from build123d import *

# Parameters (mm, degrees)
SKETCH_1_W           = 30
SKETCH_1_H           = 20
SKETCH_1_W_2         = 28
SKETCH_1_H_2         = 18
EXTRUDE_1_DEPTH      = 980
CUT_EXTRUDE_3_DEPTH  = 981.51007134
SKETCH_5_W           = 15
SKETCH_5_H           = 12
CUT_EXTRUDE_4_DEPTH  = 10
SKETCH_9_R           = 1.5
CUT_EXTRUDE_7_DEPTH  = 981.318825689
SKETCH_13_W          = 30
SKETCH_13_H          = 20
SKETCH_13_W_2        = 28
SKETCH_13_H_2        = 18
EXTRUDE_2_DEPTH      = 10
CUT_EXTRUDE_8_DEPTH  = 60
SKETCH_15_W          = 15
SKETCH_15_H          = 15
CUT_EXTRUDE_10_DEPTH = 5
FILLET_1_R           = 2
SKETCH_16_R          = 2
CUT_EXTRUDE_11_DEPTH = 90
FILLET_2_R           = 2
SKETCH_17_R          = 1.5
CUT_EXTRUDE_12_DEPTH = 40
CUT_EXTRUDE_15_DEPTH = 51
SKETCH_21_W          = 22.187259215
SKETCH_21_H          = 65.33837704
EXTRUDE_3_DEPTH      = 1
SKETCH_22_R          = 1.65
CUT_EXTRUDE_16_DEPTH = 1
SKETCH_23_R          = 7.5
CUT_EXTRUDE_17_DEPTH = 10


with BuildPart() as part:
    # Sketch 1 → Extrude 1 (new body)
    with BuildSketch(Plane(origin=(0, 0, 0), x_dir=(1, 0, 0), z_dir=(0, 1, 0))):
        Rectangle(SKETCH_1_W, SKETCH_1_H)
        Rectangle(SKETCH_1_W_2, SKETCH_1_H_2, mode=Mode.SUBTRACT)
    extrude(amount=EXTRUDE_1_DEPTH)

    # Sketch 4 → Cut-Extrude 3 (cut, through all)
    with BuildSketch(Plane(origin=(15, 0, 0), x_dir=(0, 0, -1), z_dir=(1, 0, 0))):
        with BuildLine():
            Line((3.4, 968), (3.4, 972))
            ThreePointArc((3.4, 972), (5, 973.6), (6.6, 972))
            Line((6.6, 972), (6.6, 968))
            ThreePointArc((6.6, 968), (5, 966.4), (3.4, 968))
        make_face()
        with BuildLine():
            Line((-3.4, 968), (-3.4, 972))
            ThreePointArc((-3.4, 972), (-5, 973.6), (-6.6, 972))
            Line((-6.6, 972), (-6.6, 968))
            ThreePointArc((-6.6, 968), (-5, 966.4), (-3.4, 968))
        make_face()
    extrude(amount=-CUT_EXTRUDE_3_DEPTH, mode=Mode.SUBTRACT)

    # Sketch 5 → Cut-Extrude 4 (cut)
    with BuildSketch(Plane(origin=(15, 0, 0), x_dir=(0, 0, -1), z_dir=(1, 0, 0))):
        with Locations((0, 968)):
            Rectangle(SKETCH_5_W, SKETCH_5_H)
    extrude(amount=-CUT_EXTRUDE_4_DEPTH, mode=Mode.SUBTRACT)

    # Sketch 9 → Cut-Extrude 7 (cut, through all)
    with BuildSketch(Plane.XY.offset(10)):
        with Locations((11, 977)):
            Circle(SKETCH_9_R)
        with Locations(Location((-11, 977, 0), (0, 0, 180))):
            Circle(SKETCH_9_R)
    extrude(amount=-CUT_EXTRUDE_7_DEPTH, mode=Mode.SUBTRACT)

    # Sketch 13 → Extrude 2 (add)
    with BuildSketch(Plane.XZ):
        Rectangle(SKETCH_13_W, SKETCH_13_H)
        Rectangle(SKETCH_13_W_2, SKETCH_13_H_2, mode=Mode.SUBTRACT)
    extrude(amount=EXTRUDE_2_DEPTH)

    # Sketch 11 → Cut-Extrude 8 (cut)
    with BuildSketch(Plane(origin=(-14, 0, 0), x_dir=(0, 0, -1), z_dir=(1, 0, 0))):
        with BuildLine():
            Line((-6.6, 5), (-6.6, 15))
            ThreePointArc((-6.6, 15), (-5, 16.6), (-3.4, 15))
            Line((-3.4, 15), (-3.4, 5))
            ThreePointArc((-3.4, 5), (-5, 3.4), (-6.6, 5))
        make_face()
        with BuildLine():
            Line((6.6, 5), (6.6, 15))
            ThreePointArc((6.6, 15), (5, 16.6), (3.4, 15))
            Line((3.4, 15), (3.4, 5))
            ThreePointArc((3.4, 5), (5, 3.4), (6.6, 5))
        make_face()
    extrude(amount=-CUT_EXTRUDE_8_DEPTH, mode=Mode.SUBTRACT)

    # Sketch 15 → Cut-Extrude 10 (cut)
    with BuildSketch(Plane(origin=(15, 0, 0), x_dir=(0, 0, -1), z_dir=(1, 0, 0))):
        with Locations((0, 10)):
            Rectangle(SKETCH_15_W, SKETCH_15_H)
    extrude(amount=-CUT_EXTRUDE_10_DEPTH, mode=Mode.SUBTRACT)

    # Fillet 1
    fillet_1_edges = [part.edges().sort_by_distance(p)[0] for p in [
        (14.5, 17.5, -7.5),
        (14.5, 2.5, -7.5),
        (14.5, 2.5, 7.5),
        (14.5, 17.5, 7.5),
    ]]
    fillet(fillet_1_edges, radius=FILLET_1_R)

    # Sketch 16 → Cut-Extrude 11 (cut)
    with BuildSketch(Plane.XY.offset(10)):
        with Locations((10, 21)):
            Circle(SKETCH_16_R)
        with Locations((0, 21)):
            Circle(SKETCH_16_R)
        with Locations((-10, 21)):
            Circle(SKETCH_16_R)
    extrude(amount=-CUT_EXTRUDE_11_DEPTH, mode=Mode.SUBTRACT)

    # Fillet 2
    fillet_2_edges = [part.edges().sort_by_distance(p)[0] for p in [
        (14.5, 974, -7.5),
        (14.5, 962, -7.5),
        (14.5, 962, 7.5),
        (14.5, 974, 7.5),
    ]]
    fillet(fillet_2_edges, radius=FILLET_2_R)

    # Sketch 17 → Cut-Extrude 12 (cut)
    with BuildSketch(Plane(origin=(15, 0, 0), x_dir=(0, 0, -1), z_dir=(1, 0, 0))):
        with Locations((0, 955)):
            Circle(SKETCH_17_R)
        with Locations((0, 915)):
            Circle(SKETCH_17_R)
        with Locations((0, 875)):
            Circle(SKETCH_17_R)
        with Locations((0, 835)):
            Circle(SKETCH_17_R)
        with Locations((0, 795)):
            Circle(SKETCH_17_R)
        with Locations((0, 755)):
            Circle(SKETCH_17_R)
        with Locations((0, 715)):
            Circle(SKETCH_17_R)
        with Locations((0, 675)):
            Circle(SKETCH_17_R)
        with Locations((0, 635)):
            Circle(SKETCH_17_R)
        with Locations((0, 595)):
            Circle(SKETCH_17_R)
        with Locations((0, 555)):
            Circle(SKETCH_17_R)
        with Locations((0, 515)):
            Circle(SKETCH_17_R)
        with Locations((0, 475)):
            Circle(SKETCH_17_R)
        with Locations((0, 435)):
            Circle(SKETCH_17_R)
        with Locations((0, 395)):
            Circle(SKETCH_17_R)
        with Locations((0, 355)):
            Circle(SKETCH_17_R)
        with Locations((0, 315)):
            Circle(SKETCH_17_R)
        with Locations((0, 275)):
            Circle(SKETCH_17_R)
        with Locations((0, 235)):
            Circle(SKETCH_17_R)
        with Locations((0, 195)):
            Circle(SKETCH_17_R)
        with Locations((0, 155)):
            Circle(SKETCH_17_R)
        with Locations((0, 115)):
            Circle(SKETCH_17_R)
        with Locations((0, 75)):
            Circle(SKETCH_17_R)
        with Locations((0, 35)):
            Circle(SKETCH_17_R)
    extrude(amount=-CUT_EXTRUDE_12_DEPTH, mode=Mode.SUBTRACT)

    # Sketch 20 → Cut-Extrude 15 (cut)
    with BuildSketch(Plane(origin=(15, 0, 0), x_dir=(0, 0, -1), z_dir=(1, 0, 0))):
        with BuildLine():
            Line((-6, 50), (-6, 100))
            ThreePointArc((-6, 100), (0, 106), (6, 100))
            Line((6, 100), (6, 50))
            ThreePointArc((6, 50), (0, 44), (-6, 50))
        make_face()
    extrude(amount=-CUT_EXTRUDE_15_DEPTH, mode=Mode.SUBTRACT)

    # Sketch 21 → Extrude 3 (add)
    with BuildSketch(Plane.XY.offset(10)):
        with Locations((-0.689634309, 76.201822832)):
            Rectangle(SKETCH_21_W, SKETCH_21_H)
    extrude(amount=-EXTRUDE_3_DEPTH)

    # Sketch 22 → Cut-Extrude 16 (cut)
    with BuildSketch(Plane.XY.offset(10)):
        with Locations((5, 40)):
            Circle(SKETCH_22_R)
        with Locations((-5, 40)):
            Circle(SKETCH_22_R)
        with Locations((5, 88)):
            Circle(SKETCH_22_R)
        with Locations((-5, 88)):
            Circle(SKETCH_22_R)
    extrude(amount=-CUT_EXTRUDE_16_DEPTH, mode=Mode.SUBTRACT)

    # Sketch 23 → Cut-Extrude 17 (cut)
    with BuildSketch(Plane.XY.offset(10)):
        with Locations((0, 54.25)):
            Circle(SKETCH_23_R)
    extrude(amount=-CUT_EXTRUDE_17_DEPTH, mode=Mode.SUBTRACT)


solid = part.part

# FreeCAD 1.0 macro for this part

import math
import FreeCAD as App
import Part
import Sketcher


def edges_at(feature, points):
    """Names of the edges that pass closest to the given points."""
    edges = feature.Shape.Edges
    near = lambda p: min(range(len(edges)), key=lambda i: edges[i].distToShape(Part.Vertex(*p))[0])
    return sorted({f"Edge{near(p) + 1}" for p in points})

doc = App.newDocument("Part")
body = doc.addObject("PartDesign::Body", "Body")

# Sketch on XZ plane
sketch1 = body.newObject("Sketcher::SketchObject", "Sketch")
sketch1.AttachmentSupport = (doc.getObject("XZ_Plane"), [""])
sketch1.MapMode = "FlatFace"
sketch1.addGeometry([
    Part.LineSegment(App.Vector(-15, -10, 0), App.Vector(-15, 10, 0)),  # 0
    Part.LineSegment(App.Vector(-15, 10, 0), App.Vector(15, 10, 0)),  # 1
    Part.LineSegment(App.Vector(15, 10, 0), App.Vector(15, -10, 0)),  # 2
    Part.LineSegment(App.Vector(15, -10, 0), App.Vector(-15, -10, 0)),  # 3
    Part.LineSegment(App.Vector(14, 9, 0), App.Vector(-14, 9, 0)),  # 4
    Part.LineSegment(App.Vector(-14, 9, 0), App.Vector(-14, -9, 0)),  # 5
    Part.LineSegment(App.Vector(-14, -9, 0), App.Vector(14, -9, 0)),  # 6
    Part.LineSegment(App.Vector(14, -9, 0), App.Vector(14, 9, 0)),  # 7
], False)
sketch1.addConstraint([
    Sketcher.Constraint("Coincident", 0, 2, 1, 1),
    Sketcher.Constraint("Coincident", 1, 2, 2, 1),
    Sketcher.Constraint("Coincident", 2, 2, 3, 1),
    Sketcher.Constraint("Coincident", 3, 2, 0, 1),
    Sketcher.Constraint("Coincident", 4, 2, 5, 1),
    Sketcher.Constraint("Coincident", 5, 2, 6, 1),
    Sketcher.Constraint("Coincident", 6, 2, 7, 1),
    Sketcher.Constraint("Coincident", 7, 2, 4, 1),
    Sketcher.Constraint("Vertical", 0),
    Sketcher.Constraint("Horizontal", 1),
    Sketcher.Constraint("Vertical", 2),
    Sketcher.Constraint("Horizontal", 3),
    Sketcher.Constraint("Horizontal", 4),
    Sketcher.Constraint("Vertical", 5),
    Sketcher.Constraint("Horizontal", 6),
    Sketcher.Constraint("Vertical", 7),
    Sketcher.Constraint("Symmetric", 0, 2, 2, 2, -1, 1),
    Sketcher.Constraint("Symmetric", 4, 2, 6, 2, -1, 1),
    Sketcher.Constraint("DistanceX", 1, 1, 1, 2, 30.0),
    Sketcher.Constraint("DistanceX", 4, 2, 4, 1, 28.0),
    Sketcher.Constraint("DistanceY", 0, 1, 0, 2, 20.0),
    Sketcher.Constraint("DistanceY", 5, 2, 5, 1, 18.0),
])
pad1 = body.newObject("PartDesign::Pad", "Pad")
pad1.Profile = sketch1
pad1.Length = 980
pad1.Reversed = True

# Sketch on YZ plane
sketch2 = body.newObject("Sketcher::SketchObject", "Sketch001")
sketch2.AttachmentSupport = (doc.getObject("YZ_Plane"), [""])
sketch2.MapMode = "FlatFace"
sketch2.AttachmentOffset = App.Placement(App.Vector(0, 0, 15), App.Rotation())
sketch2.addGeometry([
    Part.LineSegment(App.Vector(972, -3.4, 0), App.Vector(968, -3.4, 0)),  # 0
    Part.ArcOfCircle(Part.Circle(App.Vector(968, -5, 0), App.Vector(0, 0, 1), 1.6), math.radians(90), math.radians(270)),  # 1
    Part.LineSegment(App.Vector(968, -6.6, 0), App.Vector(972, -6.6, 0)),  # 2
    Part.ArcOfCircle(Part.Circle(App.Vector(972, -5, 0), App.Vector(0, 0, 1), 1.6), math.radians(-90), math.radians(90)),  # 3
    Part.LineSegment(App.Vector(968, 3.4, 0), App.Vector(972, 3.4, 0)),  # 4
    Part.ArcOfCircle(Part.Circle(App.Vector(972, 5, 0), App.Vector(0, 0, 1), 1.6), math.radians(-90), math.radians(90)),  # 5
    Part.LineSegment(App.Vector(972, 6.6, 0), App.Vector(968, 6.6, 0)),  # 6
    Part.ArcOfCircle(Part.Circle(App.Vector(968, 5, 0), App.Vector(0, 0, 1), 1.6), math.radians(90), math.radians(270)),  # 7
], False)
sketch2.addConstraint([
    Sketcher.Constraint("Tangent", 0, 2, 1, 1),
    Sketcher.Constraint("Tangent", 1, 2, 2, 1),
    Sketcher.Constraint("Tangent", 2, 2, 3, 1),
    Sketcher.Constraint("Tangent", 3, 2, 0, 1),
    Sketcher.Constraint("Tangent", 4, 2, 5, 1),
    Sketcher.Constraint("Tangent", 5, 2, 6, 1),
    Sketcher.Constraint("Tangent", 6, 2, 7, 1),
    Sketcher.Constraint("Tangent", 7, 2, 4, 1),
    Sketcher.Constraint("Horizontal", 0),
    Sketcher.Constraint("Horizontal", 2),
    Sketcher.Constraint("Horizontal", 4),
    Sketcher.Constraint("Horizontal", 6),
    Sketcher.Constraint("Equal", 3, 5),
    Sketcher.Constraint("Symmetric", 3, 3, 5, 3, -1),
    Sketcher.Constraint("Vertical", 1, 3, 7, 3),
    Sketcher.Constraint("Radius", 1, 1.6),
    Sketcher.Constraint("DistanceX", 0, 2, 0, 1, 4.0),
    Sketcher.Constraint("DistanceX", -1, 1, 1, 3, 968.0),
    Sketcher.Constraint("DistanceY", 1, 3, -1, 1, 5.0),
])
pocket1 = body.newObject("PartDesign::Pocket", "Pocket")
pocket1.Profile = sketch2
pocket1.Type = "ThroughAll"

# Sketch on YZ plane
sketch3 = body.newObject("Sketcher::SketchObject", "Sketch002")
sketch3.AttachmentSupport = (doc.getObject("YZ_Plane"), [""])
sketch3.MapMode = "FlatFace"
sketch3.AttachmentOffset = App.Placement(App.Vector(0, 0, 15), App.Rotation())
sketch3.addGeometry([
    Part.LineSegment(App.Vector(974, 8, 0), App.Vector(962, 8, 0)),
    Part.LineSegment(App.Vector(962, 8, 0), App.Vector(962, -8, 0)),
    Part.LineSegment(App.Vector(962, -8, 0), App.Vector(974, -8, 0)),
    Part.LineSegment(App.Vector(974, -8, 0), App.Vector(974, 8, 0)),
], False)
sketch3.addConstraint([
    Sketcher.Constraint("Coincident", 0, 2, 1, 1),
    Sketcher.Constraint("Coincident", 1, 2, 2, 1),
    Sketcher.Constraint("Coincident", 2, 2, 3, 1),
    Sketcher.Constraint("Coincident", 3, 2, 0, 1),
    Sketcher.Constraint("Horizontal", 0),
    Sketcher.Constraint("Vertical", 1),
    Sketcher.Constraint("Horizontal", 2),
    Sketcher.Constraint("Vertical", 3),
    Sketcher.Constraint("DistanceX", 0, 2, 0, 1, 12.0),
    Sketcher.Constraint("DistanceY", 1, 2, 1, 1, 15.0),
    Sketcher.Constraint("DistanceX", -1, 1, 0, 2, 962.0),
    Sketcher.Constraint("DistanceY", -1, 1, 0, 2, 7.5),
])
pocket2 = body.newObject("PartDesign::Pocket", "Pocket001")
pocket2.Profile = sketch3
pocket2.Length = 10

# Sketch on XY plane
sketch4 = body.newObject("Sketcher::SketchObject", "Sketch003")
sketch4.AttachmentSupport = (doc.getObject("XY_Plane"), [""])
sketch4.MapMode = "FlatFace"
sketch4.AttachmentOffset = App.Placement(App.Vector(0, 0, 10), App.Rotation())
sketch4.addGeometry([
    Part.Circle(App.Vector(11, 977, 0), App.Vector(0, 0, 1), 1.5),
    Part.Circle(App.Vector(-11, 977, 0), App.Vector(0, 0, 1), 1.5),
], False)
sketch4.addConstraint([
    Sketcher.Constraint("Equal", 0, 1),
    Sketcher.Constraint("Symmetric", 0, 3, 1, 3, -2),
    Sketcher.Constraint("Diameter", 0, 3.0),
    Sketcher.Constraint("DistanceX", -1, 1, 0, 3, 11.0),
    Sketcher.Constraint("DistanceY", -1, 1, 0, 3, 977.0),
])
pocket3 = body.newObject("PartDesign::Pocket", "Pocket002")
pocket3.Profile = sketch4
pocket3.Type = "ThroughAll"

# Sketch on XZ plane
sketch5 = body.newObject("Sketcher::SketchObject", "Sketch004")
sketch5.AttachmentSupport = (doc.getObject("XZ_Plane"), [""])
sketch5.MapMode = "FlatFace"
sketch5.addGeometry([
    Part.LineSegment(App.Vector(-15, 10, 0), App.Vector(-15, -10, 0)),  # 0
    Part.LineSegment(App.Vector(-15, -10, 0), App.Vector(15, -10, 0)),  # 1
    Part.LineSegment(App.Vector(15, -10, 0), App.Vector(15, 10, 0)),  # 2
    Part.LineSegment(App.Vector(15, 10, 0), App.Vector(-15, 10, 0)),  # 3
    Part.LineSegment(App.Vector(14, -9, 0), App.Vector(-14, -9, 0)),  # 4
    Part.LineSegment(App.Vector(-14, -9, 0), App.Vector(-14, 9, 0)),  # 5
    Part.LineSegment(App.Vector(-14, 9, 0), App.Vector(14, 9, 0)),  # 6
    Part.LineSegment(App.Vector(14, 9, 0), App.Vector(14, -9, 0)),  # 7
], False)
sketch5.addConstraint([
    Sketcher.Constraint("Coincident", 0, 2, 1, 1),
    Sketcher.Constraint("Coincident", 1, 2, 2, 1),
    Sketcher.Constraint("Coincident", 2, 2, 3, 1),
    Sketcher.Constraint("Coincident", 3, 2, 0, 1),
    Sketcher.Constraint("Coincident", 4, 2, 5, 1),
    Sketcher.Constraint("Coincident", 5, 2, 6, 1),
    Sketcher.Constraint("Coincident", 6, 2, 7, 1),
    Sketcher.Constraint("Coincident", 7, 2, 4, 1),
    Sketcher.Constraint("Vertical", 0),
    Sketcher.Constraint("Horizontal", 1),
    Sketcher.Constraint("Vertical", 2),
    Sketcher.Constraint("Horizontal", 3),
    Sketcher.Constraint("Horizontal", 4),
    Sketcher.Constraint("Vertical", 5),
    Sketcher.Constraint("Horizontal", 6),
    Sketcher.Constraint("Vertical", 7),
    Sketcher.Constraint("Symmetric", 0, 2, 2, 2, -1, 1),
    Sketcher.Constraint("Symmetric", 4, 2, 6, 2, -1, 1),
    Sketcher.Constraint("DistanceX", 1, 1, 1, 2, 30.0),
    Sketcher.Constraint("DistanceX", 4, 2, 4, 1, 28.0),
    Sketcher.Constraint("DistanceY", 0, 2, 0, 1, 20.0),
    Sketcher.Constraint("DistanceY", 5, 1, 5, 2, 18.0),
])
pad2 = body.newObject("PartDesign::Pad", "Pad001")
pad2.Profile = sketch5
pad2.Length = 10

# Sketch on YZ plane
sketch6 = body.newObject("Sketcher::SketchObject", "Sketch005")
sketch6.AttachmentSupport = (doc.getObject("YZ_Plane"), [""])
sketch6.MapMode = "FlatFace"
sketch6.AttachmentOffset = App.Placement(App.Vector(0, 0, -14), App.Rotation())
sketch6.addGeometry([
    Part.LineSegment(App.Vector(15, 6.6, 0), App.Vector(5, 6.6, 0)),  # 0
    Part.ArcOfCircle(Part.Circle(App.Vector(5, 5, 0), App.Vector(0, 0, 1), 1.6), math.radians(90), math.radians(270)),  # 1
    Part.LineSegment(App.Vector(5, 3.4, 0), App.Vector(15, 3.4, 0)),  # 2
    Part.ArcOfCircle(Part.Circle(App.Vector(15, 5, 0), App.Vector(0, 0, 1), 1.6), math.radians(-90), math.radians(90)),  # 3
    Part.LineSegment(App.Vector(5, -6.6, 0), App.Vector(15, -6.6, 0)),  # 4
    Part.ArcOfCircle(Part.Circle(App.Vector(15, -5, 0), App.Vector(0, 0, 1), 1.6), math.radians(-90), math.radians(90)),  # 5
    Part.LineSegment(App.Vector(15, -3.4, 0), App.Vector(5, -3.4, 0)),  # 6
    Part.ArcOfCircle(Part.Circle(App.Vector(5, -5, 0), App.Vector(0, 0, 1), 1.6), math.radians(90), math.radians(270)),  # 7
], False)
sketch6.addConstraint([
    Sketcher.Constraint("Tangent", 0, 2, 1, 1),
    Sketcher.Constraint("Tangent", 1, 2, 2, 1),
    Sketcher.Constraint("Tangent", 2, 2, 3, 1),
    Sketcher.Constraint("Tangent", 3, 2, 0, 1),
    Sketcher.Constraint("Tangent", 4, 2, 5, 1),
    Sketcher.Constraint("Tangent", 5, 2, 6, 1),
    Sketcher.Constraint("Tangent", 6, 2, 7, 1),
    Sketcher.Constraint("Tangent", 7, 2, 4, 1),
    Sketcher.Constraint("Horizontal", 0),
    Sketcher.Constraint("Horizontal", 2),
    Sketcher.Constraint("Horizontal", 4),
    Sketcher.Constraint("Horizontal", 6),
    Sketcher.Constraint("Equal", 3, 5),
    Sketcher.Constraint("Symmetric", 3, 3, 5, 3, -1),
    Sketcher.Constraint("Vertical", 1, 3, 7, 3),
    Sketcher.Constraint("Radius", 1, 1.6),
    Sketcher.Constraint("DistanceX", 0, 2, 0, 1, 10.0),
    Sketcher.Constraint("DistanceX", -1, 1, 1, 3, 5.0),
    Sketcher.Constraint("DistanceY", -1, 1, 1, 3, 5.0),
])
pocket4 = body.newObject("PartDesign::Pocket", "Pocket003")
pocket4.Profile = sketch6
pocket4.Length = 60

# Sketch on YZ plane
sketch7 = body.newObject("Sketcher::SketchObject", "Sketch006")
sketch7.AttachmentSupport = (doc.getObject("YZ_Plane"), [""])
sketch7.MapMode = "FlatFace"
sketch7.AttachmentOffset = App.Placement(App.Vector(0, 0, 15), App.Rotation())
sketch7.addGeometry([
    Part.LineSegment(App.Vector(18, 8, 0), App.Vector(2, 8, 0)),
    Part.LineSegment(App.Vector(2, 8, 0), App.Vector(2, -8, 0)),
    Part.LineSegment(App.Vector(2, -8, 0), App.Vector(18, -8, 0)),
    Part.LineSegment(App.Vector(18, -8, 0), App.Vector(18, 8, 0)),
], False)
sketch7.addConstraint([
    Sketcher.Constraint("Coincident", 0, 2, 1, 1),
    Sketcher.Constraint("Coincident", 1, 2, 2, 1),
    Sketcher.Constraint("Coincident", 2, 2, 3, 1),
    Sketcher.Constraint("Coincident", 3, 2, 0, 1),
    Sketcher.Constraint("Horizontal", 0),
    Sketcher.Constraint("Vertical", 1),
    Sketcher.Constraint("Horizontal", 2),
    Sketcher.Constraint("Vertical", 3),
    Sketcher.Constraint("Equal", 2, 1),
    Sketcher.Constraint("DistanceX", 0, 2, 0, 1, 15.0),
    Sketcher.Constraint("DistanceX", -1, 1, 0, 2, 2.5),
    Sketcher.Constraint("DistanceY", -1, 1, 0, 2, 7.5),
])
pocket5 = body.newObject("PartDesign::Pocket", "Pocket004")
pocket5.Profile = sketch7
pocket5.Length = 5
doc.recompute()

fillet = body.newObject("PartDesign::Fillet", "Fillet")
fillet.Base = (pocket5, edges_at(pocket5, [
    (14.5, 17.5, -7.5),
    (14.5, 2.5, -7.5),
    (14.5, 2.5, 7.5),
    (14.5, 17.5, 7.5),
]))
fillet.Radius = 2

# Sketch on XY plane
sketch8 = body.newObject("Sketcher::SketchObject", "Sketch007")
sketch8.AttachmentSupport = (doc.getObject("XY_Plane"), [""])
sketch8.MapMode = "FlatFace"
sketch8.AttachmentOffset = App.Placement(App.Vector(0, 0, 10), App.Rotation())
sketch8.addGeometry([
    Part.Circle(App.Vector(10, 21, 0), App.Vector(0, 0, 1), 2),
    Part.Circle(App.Vector(0, 21, 0), App.Vector(0, 0, 1), 2),
    Part.Circle(App.Vector(-10, 21, 0), App.Vector(0, 0, 1), 2),
], False)
sketch8.addConstraint([
    Sketcher.Constraint("Equal", 0, 1),
    Sketcher.Constraint("Equal", 1, 2),
    Sketcher.Constraint("Symmetric", 0, 3, 2, 3, -2),
    Sketcher.Constraint("PointOnObject", 1, 3, -2),
    Sketcher.Constraint("Horizontal", 0, 3, 1, 3),
    Sketcher.Constraint("Diameter", 0, 4.0),
    Sketcher.Constraint("DistanceX", -1, 1, 0, 3, 10.0),
    Sketcher.Constraint("DistanceY", -1, 1, 0, 3, 21.0),
])
pocket6 = body.newObject("PartDesign::Pocket", "Pocket005")
pocket6.Profile = sketch8
pocket6.Length = 90
doc.recompute()

fillet2 = body.newObject("PartDesign::Fillet", "Fillet001")
fillet2.Base = (pocket6, edges_at(pocket6, [
    (14.5, 974, -7.5),
    (14.5, 962, -7.5),
    (14.5, 962, 7.5),
    (14.5, 974, 7.5),
]))
fillet2.Radius = 2

# Sketch on YZ plane
sketch9 = body.newObject("Sketcher::SketchObject", "Sketch008")
sketch9.AttachmentSupport = (doc.getObject("YZ_Plane"), [""])
sketch9.MapMode = "FlatFace"
sketch9.AttachmentOffset = App.Placement(App.Vector(0, 0, 15), App.Rotation())
sketch9.addGeometry([
    Part.Circle(App.Vector(955, 0, 0), App.Vector(0, 0, 1), 1.5),  # 0
    Part.Circle(App.Vector(915, 0, 0), App.Vector(0, 0, 1), 1.5),  # 1
    Part.Circle(App.Vector(875, 0, 0), App.Vector(0, 0, 1), 1.5),  # 2
    Part.Circle(App.Vector(835, 0, 0), App.Vector(0, 0, 1), 1.5),  # 3
    Part.Circle(App.Vector(795, 0, 0), App.Vector(0, 0, 1), 1.5),  # 4
    Part.Circle(App.Vector(755, 0, 0), App.Vector(0, 0, 1), 1.5),  # 5
    Part.Circle(App.Vector(715, 0, 0), App.Vector(0, 0, 1), 1.5),  # 6
    Part.Circle(App.Vector(675, 0, 0), App.Vector(0, 0, 1), 1.5),  # 7
    Part.Circle(App.Vector(635, 0, 0), App.Vector(0, 0, 1), 1.5),  # 8
    Part.Circle(App.Vector(595, 0, 0), App.Vector(0, 0, 1), 1.5),  # 9
    Part.Circle(App.Vector(555, 0, 0), App.Vector(0, 0, 1), 1.5),  # 10
    Part.Circle(App.Vector(515, 0, 0), App.Vector(0, 0, 1), 1.5),  # 11
    Part.Circle(App.Vector(475, 0, 0), App.Vector(0, 0, 1), 1.5),  # 12
    Part.Circle(App.Vector(435, 0, 0), App.Vector(0, 0, 1), 1.5),  # 13
    Part.Circle(App.Vector(395, 0, 0), App.Vector(0, 0, 1), 1.5),  # 14
    Part.Circle(App.Vector(355, 0, 0), App.Vector(0, 0, 1), 1.5),  # 15
    Part.Circle(App.Vector(315, 0, 0), App.Vector(0, 0, 1), 1.5),  # 16
    Part.Circle(App.Vector(275, 0, 0), App.Vector(0, 0, 1), 1.5),  # 17
    Part.Circle(App.Vector(235, 0, 0), App.Vector(0, 0, 1), 1.5),  # 18
    Part.Circle(App.Vector(195, 0, 0), App.Vector(0, 0, 1), 1.5),  # 19
    Part.Circle(App.Vector(155, 0, 0), App.Vector(0, 0, 1), 1.5),  # 20
    Part.Circle(App.Vector(115, 0, 0), App.Vector(0, 0, 1), 1.5),  # 21
    Part.Circle(App.Vector(75, 0, 0), App.Vector(0, 0, 1), 1.5),  # 22
    Part.Circle(App.Vector(35, 0, 0), App.Vector(0, 0, 1), 1.5),  # 23
], False)
sketch9.addConstraint([
    Sketcher.Constraint("Equal", 0, 1),
    Sketcher.Constraint("Equal", 1, 2),
    Sketcher.Constraint("Equal", 2, 3),
    Sketcher.Constraint("Equal", 3, 4),
    Sketcher.Constraint("Equal", 4, 5),
    Sketcher.Constraint("Equal", 5, 6),
    Sketcher.Constraint("Equal", 6, 7),
    Sketcher.Constraint("Equal", 7, 8),
    Sketcher.Constraint("Equal", 8, 9),
    Sketcher.Constraint("Equal", 9, 10),
    Sketcher.Constraint("Equal", 10, 11),
    Sketcher.Constraint("Equal", 11, 12),
    Sketcher.Constraint("Equal", 12, 13),
    Sketcher.Constraint("Equal", 13, 14),
    Sketcher.Constraint("Equal", 14, 15),
    Sketcher.Constraint("Equal", 15, 16),
    Sketcher.Constraint("Equal", 16, 17),
    Sketcher.Constraint("Equal", 17, 18),
    Sketcher.Constraint("Equal", 18, 19),
    Sketcher.Constraint("Equal", 19, 20),
    Sketcher.Constraint("Equal", 20, 21),
    Sketcher.Constraint("Equal", 21, 22),
    Sketcher.Constraint("Equal", 22, 23),
    Sketcher.Constraint("PointOnObject", 0, 3, -1),
    Sketcher.Constraint("PointOnObject", 1, 3, -1),
    Sketcher.Constraint("PointOnObject", 2, 3, -1),
    Sketcher.Constraint("PointOnObject", 3, 3, -1),
    Sketcher.Constraint("PointOnObject", 4, 3, -1),
    Sketcher.Constraint("PointOnObject", 5, 3, -1),
    Sketcher.Constraint("PointOnObject", 6, 3, -1),
    Sketcher.Constraint("PointOnObject", 7, 3, -1),
    Sketcher.Constraint("PointOnObject", 8, 3, -1),
    Sketcher.Constraint("PointOnObject", 9, 3, -1),
    Sketcher.Constraint("PointOnObject", 10, 3, -1),
    Sketcher.Constraint("PointOnObject", 11, 3, -1),
    Sketcher.Constraint("PointOnObject", 12, 3, -1),
    Sketcher.Constraint("PointOnObject", 13, 3, -1),
    Sketcher.Constraint("PointOnObject", 14, 3, -1),
    Sketcher.Constraint("PointOnObject", 15, 3, -1),
    Sketcher.Constraint("PointOnObject", 16, 3, -1),
    Sketcher.Constraint("PointOnObject", 17, 3, -1),
    Sketcher.Constraint("PointOnObject", 18, 3, -1),
    Sketcher.Constraint("PointOnObject", 19, 3, -1),
    Sketcher.Constraint("PointOnObject", 20, 3, -1),
    Sketcher.Constraint("PointOnObject", 21, 3, -1),
    Sketcher.Constraint("PointOnObject", 22, 3, -1),
    Sketcher.Constraint("PointOnObject", 23, 3, -1),
    Sketcher.Constraint("Diameter", 0, 3.0),
    Sketcher.Constraint("DistanceX", -1, 1, 0, 3, 955.0),
    Sketcher.Constraint("DistanceX", -1, 1, 1, 3, 915.0),
    Sketcher.Constraint("DistanceX", -1, 1, 2, 3, 875.0),
    Sketcher.Constraint("DistanceX", -1, 1, 3, 3, 835.0),
    Sketcher.Constraint("DistanceX", -1, 1, 4, 3, 795.0),
    Sketcher.Constraint("DistanceX", -1, 1, 5, 3, 755.0),
    Sketcher.Constraint("DistanceX", -1, 1, 6, 3, 715.0),
    Sketcher.Constraint("DistanceX", -1, 1, 7, 3, 675.0),
    Sketcher.Constraint("DistanceX", -1, 1, 8, 3, 635.0),
    Sketcher.Constraint("DistanceX", -1, 1, 9, 3, 595.0),
    Sketcher.Constraint("DistanceX", -1, 1, 10, 3, 555.0),
    Sketcher.Constraint("DistanceX", -1, 1, 11, 3, 515.0),
    Sketcher.Constraint("DistanceX", -1, 1, 12, 3, 475.0),
    Sketcher.Constraint("DistanceX", -1, 1, 13, 3, 435.0),
    Sketcher.Constraint("DistanceX", -1, 1, 14, 3, 395.0),
    Sketcher.Constraint("DistanceX", -1, 1, 15, 3, 355.0),
    Sketcher.Constraint("DistanceX", -1, 1, 16, 3, 315.0),
    Sketcher.Constraint("DistanceX", -1, 1, 17, 3, 275.0),
    Sketcher.Constraint("DistanceX", -1, 1, 18, 3, 235.0),
    Sketcher.Constraint("DistanceX", -1, 1, 19, 3, 195.0),
    Sketcher.Constraint("DistanceX", -1, 1, 20, 3, 155.0),
    Sketcher.Constraint("DistanceX", -1, 1, 21, 3, 115.0),
    Sketcher.Constraint("DistanceX", -1, 1, 22, 3, 75.0),
    Sketcher.Constraint("DistanceX", -1, 1, 23, 3, 35.0),
])
pocket7 = body.newObject("PartDesign::Pocket", "Pocket006")
pocket7.Profile = sketch9
pocket7.Length = 40

# Sketch on YZ plane
sketch10 = body.newObject("Sketcher::SketchObject", "Sketch009")
sketch10.AttachmentSupport = (doc.getObject("YZ_Plane"), [""])
sketch10.MapMode = "FlatFace"
sketch10.AttachmentOffset = App.Placement(App.Vector(0, 0, 15), App.Rotation())
sketch10.addGeometry([
    Part.LineSegment(App.Vector(100, 6, 0), App.Vector(50, 6, 0)),
    Part.ArcOfCircle(Part.Circle(App.Vector(50, 0, 0), App.Vector(0, 0, 1), 6), math.radians(90), math.radians(270)),
    Part.LineSegment(App.Vector(50, -6, 0), App.Vector(100, -6, 0)),
    Part.ArcOfCircle(Part.Circle(App.Vector(100, 0, 0), App.Vector(0, 0, 1), 6), math.radians(-90), math.radians(90)),
], False)
sketch10.addConstraint([
    Sketcher.Constraint("Tangent", 0, 2, 1, 1),
    Sketcher.Constraint("Tangent", 1, 2, 2, 1),
    Sketcher.Constraint("Tangent", 2, 2, 3, 1),
    Sketcher.Constraint("Tangent", 3, 2, 0, 1),
    Sketcher.Constraint("Horizontal", 0),
    Sketcher.Constraint("Horizontal", 2),
    Sketcher.Constraint("PointOnObject", 1, 3, -1),
    Sketcher.Constraint("Radius", 1, 6.0),
    Sketcher.Constraint("DistanceX", 0, 2, 0, 1, 50.0),
    Sketcher.Constraint("DistanceX", -1, 1, 1, 3, 50.0),
])
pocket8 = body.newObject("PartDesign::Pocket", "Pocket007")
pocket8.Profile = sketch10
pocket8.Length = 51

# Sketch on XY plane
sketch11 = body.newObject("Sketcher::SketchObject", "Sketch010")
sketch11.AttachmentSupport = (doc.getObject("XY_Plane"), [""])
sketch11.MapMode = "FlatFace"
sketch11.AttachmentOffset = App.Placement(App.Vector(0, 0, 10), App.Rotation())
sketch11.addGeometry([
    Part.LineSegment(App.Vector(-12, 109, 0), App.Vector(-12, 44, 0)),
    Part.LineSegment(App.Vector(-12, 44, 0), App.Vector(10, 44, 0)),
    Part.LineSegment(App.Vector(10, 44, 0), App.Vector(10, 109, 0)),
    Part.LineSegment(App.Vector(10, 109, 0), App.Vector(-12, 109, 0)),
], False)
sketch11.addConstraint([
    Sketcher.Constraint("Coincident", 0, 2, 1, 1),
    Sketcher.Constraint("Coincident", 1, 2, 2, 1),
    Sketcher.Constraint("Coincident", 2, 2, 3, 1),
    Sketcher.Constraint("Coincident", 3, 2, 0, 1),
    Sketcher.Constraint("Vertical", 0),
    Sketcher.Constraint("Horizontal", 1),
    Sketcher.Constraint("Vertical", 2),
    Sketcher.Constraint("Horizontal", 3),
    Sketcher.Constraint("DistanceX", 1, 1, 1, 2, 22.187259),
    Sketcher.Constraint("DistanceY", 0, 2, 0, 1, 65.338377),
    Sketcher.Constraint("DistanceY", -1, 1, 2, 2, 108.871011),
    Sketcher.Constraint("DistanceX", 0, 2, -1, 1, 11.783264),
])
pad3 = body.newObject("PartDesign::Pad", "Pad002")
pad3.Profile = sketch11
pad3.Length = 1
pad3.Reversed = True

# Sketch on XY plane
sketch12 = body.newObject("Sketcher::SketchObject", "Sketch011")
sketch12.AttachmentSupport = (doc.getObject("XY_Plane"), [""])
sketch12.MapMode = "FlatFace"
sketch12.AttachmentOffset = App.Placement(App.Vector(0, 0, 10), App.Rotation())
sketch12.addGeometry([
    Part.Circle(App.Vector(5, 40, 0), App.Vector(0, 0, 1), 1.6),
    Part.Circle(App.Vector(-5, 40, 0), App.Vector(0, 0, 1), 1.6),
    Part.Circle(App.Vector(5, 88, 0), App.Vector(0, 0, 1), 1.6),
    Part.Circle(App.Vector(-5, 88, 0), App.Vector(0, 0, 1), 1.6),
], False)
sketch12.addConstraint([
    Sketcher.Constraint("Equal", 0, 1),
    Sketcher.Constraint("Equal", 1, 2),
    Sketcher.Constraint("Equal", 2, 3),
    Sketcher.Constraint("Symmetric", 0, 3, 1, 3, -2),
    Sketcher.Constraint("Symmetric", 2, 3, 3, 3, -2),
    Sketcher.Constraint("Vertical", 0, 3, 2, 3),
    Sketcher.Constraint("Diameter", 0, 3.3),
    Sketcher.Constraint("DistanceX", -1, 1, 0, 3, 5.0),
    Sketcher.Constraint("DistanceY", -1, 1, 0, 3, 40.0),
    Sketcher.Constraint("DistanceY", -1, 1, 2, 3, 88.0),
])
pocket9 = body.newObject("PartDesign::Pocket", "Pocket008")
pocket9.Profile = sketch12
pocket9.Length = 1

# Sketch on XY plane
sketch13 = body.newObject("Sketcher::SketchObject", "Sketch012")
sketch13.AttachmentSupport = (doc.getObject("XY_Plane"), [""])
sketch13.MapMode = "FlatFace"
sketch13.AttachmentOffset = App.Placement(App.Vector(0, 0, 10), App.Rotation())
sketch13.addGeometry(Part.Circle(App.Vector(0, 54, 0), App.Vector(0, 0, 1), 8), False)
sketch13.addConstraint([
    Sketcher.Constraint("PointOnObject", 0, 3, -2),
    Sketcher.Constraint("Diameter", 0, 15.0),
    Sketcher.Constraint("DistanceY", -1, 1, 0, 3, 54.25),
])
pocket10 = body.newObject("PartDesign::Pocket", "Pocket009")
pocket10.Profile = sketch13
pocket10.Length = 10

doc.recompute()
